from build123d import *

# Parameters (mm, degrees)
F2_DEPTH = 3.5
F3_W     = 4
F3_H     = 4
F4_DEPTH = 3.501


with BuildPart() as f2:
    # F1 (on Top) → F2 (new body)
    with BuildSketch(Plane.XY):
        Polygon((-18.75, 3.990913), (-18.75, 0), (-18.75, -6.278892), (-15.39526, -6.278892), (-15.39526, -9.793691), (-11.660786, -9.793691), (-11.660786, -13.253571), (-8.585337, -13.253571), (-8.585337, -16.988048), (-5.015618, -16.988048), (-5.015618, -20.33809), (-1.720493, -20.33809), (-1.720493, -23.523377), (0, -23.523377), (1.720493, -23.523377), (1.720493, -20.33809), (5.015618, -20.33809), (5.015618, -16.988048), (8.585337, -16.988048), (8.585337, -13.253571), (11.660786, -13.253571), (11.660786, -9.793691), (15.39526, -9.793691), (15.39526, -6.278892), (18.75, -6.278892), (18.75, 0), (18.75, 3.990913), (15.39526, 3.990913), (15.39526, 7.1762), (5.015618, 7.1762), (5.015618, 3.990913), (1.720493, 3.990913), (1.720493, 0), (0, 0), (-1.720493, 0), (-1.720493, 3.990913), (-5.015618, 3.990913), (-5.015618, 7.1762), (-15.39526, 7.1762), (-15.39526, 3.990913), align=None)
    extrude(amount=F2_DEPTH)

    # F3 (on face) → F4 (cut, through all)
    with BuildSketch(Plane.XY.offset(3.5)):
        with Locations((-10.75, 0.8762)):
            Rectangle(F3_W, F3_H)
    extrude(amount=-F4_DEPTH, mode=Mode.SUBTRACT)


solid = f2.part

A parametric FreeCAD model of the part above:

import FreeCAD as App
import Part
import Sketcher

doc = App.newDocument("Part")
body = doc.addObject("PartDesign::Body", "Body")

# Sketch on XY plane
sketch1 = doc.addObject("Sketcher::SketchObject", "Sketch")
body.addObject(sketch1)
sketch1.AttachmentSupport = (doc.XY_Plane, [""])
sketch1.MapMode = "FlatFace"
sketch1.addGeometry([
    Part.LineSegment(App.Vector(-18.75, 3.990913, 0), App.Vector(-18.75, -6.278892, 0)),  # 0
    Part.LineSegment(App.Vector(-18.75, -6.278892, 0), App.Vector(-15.39526, -6.278892, 0)),  # 1
    Part.LineSegment(App.Vector(-15.39526, -6.278892, 0), App.Vector(-15.39526, -9.793691, 0)),  # 2
    Part.LineSegment(App.Vector(-15.39526, -9.793691, 0), App.Vector(-11.660786, -9.793691, 0)),  # 3
    Part.LineSegment(App.Vector(-11.660786, -9.793691, 0), App.Vector(-11.660786, -13.253571, 0)),  # 4
    Part.LineSegment(App.Vector(-11.660786, -13.253571, 0), App.Vector(-8.585337, -13.253571, 0)),  # 5
    Part.LineSegment(App.Vector(-8.585337, -13.253571, 0), App.Vector(-8.585337, -16.988048, 0)),  # 6
    Part.LineSegment(App.Vector(-8.585337, -16.988048, 0), App.Vector(-5.015618, -16.988048, 0)),  # 7
    Part.LineSegment(App.Vector(-5.015618, -16.988048, 0), App.Vector(-5.015618, -20.33809, 0)),  # 8
    Part.LineSegment(App.Vector(-5.015618, -20.33809, 0), App.Vector(-1.720493, -20.33809, 0)),  # 9
    Part.LineSegment(App.Vector(-1.720493, -20.33809, 0), App.Vector(-1.720493, -23.523377, 0)),  # 10
    Part.LineSegment(App.Vector(-1.720493, -23.523377, 0), App.Vector(1.720493, -23.523377, 0)),  # 11
    Part.LineSegment(App.Vector(1.720493, -23.523377, 0), App.Vector(1.720493, -20.33809, 0)),  # 12
    Part.LineSegment(App.Vector(1.720493, -20.33809, 0), App.Vector(5.015618, -20.33809, 0)),  # 13
    Part.LineSegment(App.Vector(5.015618, -20.33809, 0), App.Vector(5.015618, -16.988048, 0)),  # 14
    Part.LineSegment(App.Vector(5.015618, -16.988048, 0), App.Vector(8.585337, -16.988048, 0)),  # 15
    Part.LineSegment(App.Vector(8.585337, -16.988048, 0), App.Vector(8.585337, -13.253571, 0)),  # 16
    Part.LineSegment(App.Vector(8.585337, -13.253571, 0), App.Vector(11.660786, -13.253571, 0)),  # 17
    Part.LineSegment(App.Vector(11.660786, -13.253571, 0), App.Vector(11.660786, -9.793691, 0)),  # 18
    Part.LineSegment(App.Vector(11.660786, -9.793691, 0), App.Vector(15.39526, -9.793691, 0)),  # 19
    Part.LineSegment(App.Vector(15.39526, -9.793691, 0), App.Vector(15.39526, -6.278892, 0)),  # 20
    Part.LineSegment(App.Vector(15.39526, -6.278892, 0), App.Vector(18.75, -6.278892, 0)),  # 21
    Part.LineSegment(App.Vector(18.75, -6.278892, 0), App.Vector(18.75, 3.990913, 0)),  # 22
    Part.LineSegment(App.Vector(18.75, 3.990913, 0), App.Vector(15.39526, 3.990913, 0)),  # 23
    Part.LineSegment(App.Vector(15.39526, 3.990913, 0), App.Vector(15.39526, 7.1762, 0)),  # 24
    Part.LineSegment(App.Vector(15.39526, 7.1762, 0), App.Vector(5.015618, 7.1762, 0)),  # 25
    Part.LineSegment(App.Vector(5.015618, 7.1762, 0), App.Vector(5.015618, 3.990913, 0)),  # 26
    Part.LineSegment(App.Vector(5.015618, 3.990913, 0), App.Vector(1.720493, 3.990913, 0)),  # 27
    Part.LineSegment(App.Vector(1.720493, 3.990913, 0), App.Vector(1.720493, 0, 0)),  # 28
    Part.LineSegment(App.Vector(1.720493, 0, 0), App.Vector(-1.720493, 0, 0)),  # 29
    Part.LineSegment(App.Vector(-1.720493, 0, 0), App.Vector(-1.720493, 3.990913, 0)),  # 30
    Part.LineSegment(App.Vector(-1.720493, 3.990913, 0), App.Vector(-5.015618, 3.990913, 0)),  # 31
    Part.LineSegment(App.Vector(-5.015618, 3.990913, 0), App.Vector(-5.015618, 7.1762, 0)),  # 32
    Part.LineSegment(App.Vector(-5.015618, 7.1762, 0), App.Vector(-15.39526, 7.1762, 0)),  # 33
    Part.LineSegment(App.Vector(-15.39526, 7.1762, 0), App.Vector(-15.39526, 3.990913, 0)),  # 34
    Part.LineSegment(App.Vector(-15.39526, 3.990913, 0), App.Vector(-18.75, 3.990913, 0)),  # 35
], False)
sketch1.addConstraint([
    Sketcher.Constraint("Coincident", 0, 2, 1, 1),
    Sketcher.Constraint("Coincident", 1, 2, 2, 1),
    Sketcher.Constraint("Coincident", 2, 2, 3, 1),
    Sketcher.Constraint("Coincident", 3, 2, 4, 1),
    Sketcher.Constraint("Coincident", 4, 2, 5, 1),
    Sketcher.Constraint("Coincident", 5, 2, 6, 1),
    Sketcher.Constraint("Coincident", 6, 2, 7, 1),
    Sketcher.Constraint("Coincident", 7, 2, 8, 1),
    Sketcher.Constraint("Coincident", 8, 2, 9, 1),
    Sketcher.Constraint("Coincident", 9, 2, 10, 1),
    Sketcher.Constraint("Coincident", 10, 2, 11, 1),
    Sketcher.Constraint("Coincident", 11, 2, 12, 1),
    Sketcher.Constraint("Coincident", 12, 2, 13, 1),
    Sketcher.Constraint("Coincident", 13, 2, 14, 1),
    Sketcher.Constraint("Coincident", 14, 2, 15, 1),
    Sketcher.Constraint("Coincident", 15, 2, 16, 1),
    Sketcher.Constraint("Coincident", 16, 2, 17, 1),
    Sketcher.Constraint("Coincident", 17, 2, 18, 1),
    Sketcher.Constraint("Coincident", 18, 2, 19, 1),
    Sketcher.Constraint("Coincident", 19, 2, 20, 1),
    Sketcher.Constraint("Coincident", 20, 2, 21, 1),
    Sketcher.Constraint("Coincident", 21, 2, 22, 1),
    Sketcher.Constraint("Coincident", 22, 2, 23, 1),
    Sketcher.Constraint("Coincident", 23, 2, 24, 1),
    Sketcher.Constraint("Coincident", 24, 2, 25, 1),
    Sketcher.Constraint("Coincident", 25, 2, 26, 1),
    Sketcher.Constraint("Coincident", 26, 2, 27, 1),
    Sketcher.Constraint("Coincident", 27, 2, 28, 1),
    Sketcher.Constraint("Coincident", 28, 2, 29, 1),
    Sketcher.Constraint("Coincident", 29, 2, 30, 1),
    Sketcher.Constraint("Coincident", 30, 2, 31, 1),
    Sketcher.Constraint("Coincident", 31, 2, 32, 1),
    Sketcher.Constraint("Coincident", 32, 2, 33, 1),
    Sketcher.Constraint("Coincident", 33, 2, 34, 1),
    Sketcher.Constraint("Coincident", 34, 2, 35, 1),
    Sketcher.Constraint("Coincident", 35, 2, 0, 1),
    Sketcher.Constraint("Vertical", 0),
    Sketcher.Constraint("Horizontal", 1),
    Sketcher.Constraint("Vertical", 2),
    Sketcher.Constraint("Horizontal", 3),
    Sketcher.Constraint("Vertical", 4),
    Sketcher.Constraint("Horizontal", 5),
    Sketcher.Constraint("Vertical", 6),
    Sketcher.Constraint("Horizontal", 7),
    Sketcher.Constraint("Vertical", 8),
    Sketcher.Constraint("Horizontal", 9),
    Sketcher.Constraint("Vertical", 10),
    Sketcher.Constraint("Horizontal", 11),
    Sketcher.Constraint("Vertical", 12),
    Sketcher.Constraint("Horizontal", 13),
    Sketcher.Constraint("Vertical", 14),
    Sketcher.Constraint("Horizontal", 15),
    Sketcher.Constraint("Vertical", 16),
    Sketcher.Constraint("Horizontal", 17),
    Sketcher.Constraint("Vertical", 18),
    Sketcher.Constraint("Horizontal", 19),
    Sketcher.Constraint("Vertical", 20),
    Sketcher.Constraint("Horizontal", 21),
    Sketcher.Constraint("Vertical", 22),
    Sketcher.Constraint("Horizontal", 23),
    Sketcher.Constraint("Vertical", 24),
    Sketcher.Constraint("Horizontal", 25),
    Sketcher.Constraint("Vertical", 26),
    Sketcher.Constraint("Horizontal", 27),
    Sketcher.Constraint("Vertical", 28),
    Sketcher.Constraint("Horizontal", 29),
    Sketcher.Constraint("Vertical", 30),
    Sketcher.Constraint("Horizontal", 31),
    Sketcher.Constraint("Vertical", 32),
    Sketcher.Constraint("Horizontal", 33),
    Sketcher.Constraint("Vertical", 34),
    Sketcher.Constraint("Horizontal", 35),
    Sketcher.Constraint("Symmetric", 28, 2, 29, 2, -1, 1),
    Sketcher.Constraint("Symmetric", 9, 2, 12, 2, -2),
    Sketcher.Constraint("Symmetric", 7, 2, 14, 2, -2),
    Sketcher.Constraint("Symmetric", 5, 2, 16, 2, -2),
    Sketcher.Constraint("Symmetric", 3, 2, 18, 2, -2),
    Sketcher.Constraint("Symmetric", 1, 2, 20, 2, -2),
    Sketcher.Constraint("Symmetric", 26, 2, 31, 2, -2),
    Sketcher.Constraint("Symmetric", 24, 2, 33, 2, -2),
    Sketcher.Constraint("Symmetric", 22, 2, 35, 2, -2),
    Sketcher.Constraint("Horizontal", 23, 2, 26, 2),
    Sketcher.Constraint("Vertical", 20, 2, 23, 2),
    Sketcher.Constraint("Vertical", 14, 2, 25, 2),
    Sketcher.Constraint("Vertical", 12, 2, 27, 2),
    Sketcher.Constraint("Equal", 12, 24),
    Sketcher.Constraint("DistanceX", 0, 2, -1, 1, 18.75),
    Sketcher.Constraint("DistanceY", 2, 2, 2, 1, 3.514799),
    Sketcher.Constraint("DistanceX", 1, 1, 1, 2, 3.35474),
    Sketcher.Constraint("DistanceX", 5, 1, 5, 2, 3.075449),
    Sketcher.Constraint("DistanceX", 7, 1, 7, 2, 3.569719),
    Sketcher.Constraint("DistanceY", 4, 2, 4, 1, 3.45988),
    Sketcher.Constraint("DistanceY", -1, 1, 24, 2, 7.1762),
    Sketcher.Constraint("DistanceY", 8, 2, 3, 2, 10.544399),
    Sketcher.Constraint("DistanceX", 3, 1, 3, 2, 3.734474),
    Sketcher.Constraint("DistanceX", 9, 1, 9, 2, 3.295125),
    Sketcher.Constraint("DistanceY", 0, 2, 0, 1, 10.269805),
    Sketcher.Constraint("DistanceY", 6, 2, 6, 1, 3.734477),
    Sketcher.Constraint("DistanceY", 10, 2, 10, 1, 3.185287),
])
pad1 = doc.addObject("PartDesign::Pad", "Pad")
body.addObject(pad1)
pad1.Profile = sketch1
pad1.Length = 3.5

# Sketch on XY plane
sketch2 = doc.addObject("Sketcher::SketchObject", "Sketch001")
body.addObject(sketch2)
sketch2.AttachmentSupport = (doc.XY_Plane, [""])
sketch2.MapMode = "FlatFace"
sketch2.AttachmentOffset = App.Placement(App.Vector(0, 0, 3.5), App.Rotation())
sketch2.addGeometry([
    Part.LineSegment(App.Vector(-12.75, 2.8762, 0), App.Vector(-12.75, -1.1238, 0)),
    Part.LineSegment(App.Vector(-12.75, -1.1238, 0), App.Vector(-8.75, -1.1238, 0)),
    Part.LineSegment(App.Vector(-8.75, -1.1238, 0), App.Vector(-8.75, 2.8762, 0)),
    Part.LineSegment(App.Vector(-8.75, 2.8762, 0), App.Vector(-12.75, 2.8762, 0)),
], False)
sketch2.addConstraint([
    Sketcher.Constraint("Coincident", 0, 2, 1, 1),
    Sketcher.Constraint("Coincident", 1, 2, 2, 1),
    Sketcher.Constraint("Coincident", 2, 2, 3, 1),
    Sketcher.Constraint("Coincident", 3, 2, 0, 1),
    Sketcher.Constraint("Vertical", 0),
    Sketcher.Constraint("Horizontal", 1),
    Sketcher.Constraint("Vertical", 2),
    Sketcher.Constraint("Horizontal", 3),
    Sketcher.Constraint("Equal", 3, 0),
    Sketcher.Constraint("DistanceX", 1, 1, 1, 2, 4.0),
    Sketcher.Constraint("DistanceX", 0, 2, -1, 1, 12.75),
    Sketcher.Constraint("DistanceY", 0, 2, -1, 1, 1.1238),
])
pocket1 = doc.addObject("PartDesign::Pocket", "Pocket")
body.addObject(pocket1)
pocket1.Profile = sketch2
pocket1.Type = "ThroughAll"

doc.recompute()
